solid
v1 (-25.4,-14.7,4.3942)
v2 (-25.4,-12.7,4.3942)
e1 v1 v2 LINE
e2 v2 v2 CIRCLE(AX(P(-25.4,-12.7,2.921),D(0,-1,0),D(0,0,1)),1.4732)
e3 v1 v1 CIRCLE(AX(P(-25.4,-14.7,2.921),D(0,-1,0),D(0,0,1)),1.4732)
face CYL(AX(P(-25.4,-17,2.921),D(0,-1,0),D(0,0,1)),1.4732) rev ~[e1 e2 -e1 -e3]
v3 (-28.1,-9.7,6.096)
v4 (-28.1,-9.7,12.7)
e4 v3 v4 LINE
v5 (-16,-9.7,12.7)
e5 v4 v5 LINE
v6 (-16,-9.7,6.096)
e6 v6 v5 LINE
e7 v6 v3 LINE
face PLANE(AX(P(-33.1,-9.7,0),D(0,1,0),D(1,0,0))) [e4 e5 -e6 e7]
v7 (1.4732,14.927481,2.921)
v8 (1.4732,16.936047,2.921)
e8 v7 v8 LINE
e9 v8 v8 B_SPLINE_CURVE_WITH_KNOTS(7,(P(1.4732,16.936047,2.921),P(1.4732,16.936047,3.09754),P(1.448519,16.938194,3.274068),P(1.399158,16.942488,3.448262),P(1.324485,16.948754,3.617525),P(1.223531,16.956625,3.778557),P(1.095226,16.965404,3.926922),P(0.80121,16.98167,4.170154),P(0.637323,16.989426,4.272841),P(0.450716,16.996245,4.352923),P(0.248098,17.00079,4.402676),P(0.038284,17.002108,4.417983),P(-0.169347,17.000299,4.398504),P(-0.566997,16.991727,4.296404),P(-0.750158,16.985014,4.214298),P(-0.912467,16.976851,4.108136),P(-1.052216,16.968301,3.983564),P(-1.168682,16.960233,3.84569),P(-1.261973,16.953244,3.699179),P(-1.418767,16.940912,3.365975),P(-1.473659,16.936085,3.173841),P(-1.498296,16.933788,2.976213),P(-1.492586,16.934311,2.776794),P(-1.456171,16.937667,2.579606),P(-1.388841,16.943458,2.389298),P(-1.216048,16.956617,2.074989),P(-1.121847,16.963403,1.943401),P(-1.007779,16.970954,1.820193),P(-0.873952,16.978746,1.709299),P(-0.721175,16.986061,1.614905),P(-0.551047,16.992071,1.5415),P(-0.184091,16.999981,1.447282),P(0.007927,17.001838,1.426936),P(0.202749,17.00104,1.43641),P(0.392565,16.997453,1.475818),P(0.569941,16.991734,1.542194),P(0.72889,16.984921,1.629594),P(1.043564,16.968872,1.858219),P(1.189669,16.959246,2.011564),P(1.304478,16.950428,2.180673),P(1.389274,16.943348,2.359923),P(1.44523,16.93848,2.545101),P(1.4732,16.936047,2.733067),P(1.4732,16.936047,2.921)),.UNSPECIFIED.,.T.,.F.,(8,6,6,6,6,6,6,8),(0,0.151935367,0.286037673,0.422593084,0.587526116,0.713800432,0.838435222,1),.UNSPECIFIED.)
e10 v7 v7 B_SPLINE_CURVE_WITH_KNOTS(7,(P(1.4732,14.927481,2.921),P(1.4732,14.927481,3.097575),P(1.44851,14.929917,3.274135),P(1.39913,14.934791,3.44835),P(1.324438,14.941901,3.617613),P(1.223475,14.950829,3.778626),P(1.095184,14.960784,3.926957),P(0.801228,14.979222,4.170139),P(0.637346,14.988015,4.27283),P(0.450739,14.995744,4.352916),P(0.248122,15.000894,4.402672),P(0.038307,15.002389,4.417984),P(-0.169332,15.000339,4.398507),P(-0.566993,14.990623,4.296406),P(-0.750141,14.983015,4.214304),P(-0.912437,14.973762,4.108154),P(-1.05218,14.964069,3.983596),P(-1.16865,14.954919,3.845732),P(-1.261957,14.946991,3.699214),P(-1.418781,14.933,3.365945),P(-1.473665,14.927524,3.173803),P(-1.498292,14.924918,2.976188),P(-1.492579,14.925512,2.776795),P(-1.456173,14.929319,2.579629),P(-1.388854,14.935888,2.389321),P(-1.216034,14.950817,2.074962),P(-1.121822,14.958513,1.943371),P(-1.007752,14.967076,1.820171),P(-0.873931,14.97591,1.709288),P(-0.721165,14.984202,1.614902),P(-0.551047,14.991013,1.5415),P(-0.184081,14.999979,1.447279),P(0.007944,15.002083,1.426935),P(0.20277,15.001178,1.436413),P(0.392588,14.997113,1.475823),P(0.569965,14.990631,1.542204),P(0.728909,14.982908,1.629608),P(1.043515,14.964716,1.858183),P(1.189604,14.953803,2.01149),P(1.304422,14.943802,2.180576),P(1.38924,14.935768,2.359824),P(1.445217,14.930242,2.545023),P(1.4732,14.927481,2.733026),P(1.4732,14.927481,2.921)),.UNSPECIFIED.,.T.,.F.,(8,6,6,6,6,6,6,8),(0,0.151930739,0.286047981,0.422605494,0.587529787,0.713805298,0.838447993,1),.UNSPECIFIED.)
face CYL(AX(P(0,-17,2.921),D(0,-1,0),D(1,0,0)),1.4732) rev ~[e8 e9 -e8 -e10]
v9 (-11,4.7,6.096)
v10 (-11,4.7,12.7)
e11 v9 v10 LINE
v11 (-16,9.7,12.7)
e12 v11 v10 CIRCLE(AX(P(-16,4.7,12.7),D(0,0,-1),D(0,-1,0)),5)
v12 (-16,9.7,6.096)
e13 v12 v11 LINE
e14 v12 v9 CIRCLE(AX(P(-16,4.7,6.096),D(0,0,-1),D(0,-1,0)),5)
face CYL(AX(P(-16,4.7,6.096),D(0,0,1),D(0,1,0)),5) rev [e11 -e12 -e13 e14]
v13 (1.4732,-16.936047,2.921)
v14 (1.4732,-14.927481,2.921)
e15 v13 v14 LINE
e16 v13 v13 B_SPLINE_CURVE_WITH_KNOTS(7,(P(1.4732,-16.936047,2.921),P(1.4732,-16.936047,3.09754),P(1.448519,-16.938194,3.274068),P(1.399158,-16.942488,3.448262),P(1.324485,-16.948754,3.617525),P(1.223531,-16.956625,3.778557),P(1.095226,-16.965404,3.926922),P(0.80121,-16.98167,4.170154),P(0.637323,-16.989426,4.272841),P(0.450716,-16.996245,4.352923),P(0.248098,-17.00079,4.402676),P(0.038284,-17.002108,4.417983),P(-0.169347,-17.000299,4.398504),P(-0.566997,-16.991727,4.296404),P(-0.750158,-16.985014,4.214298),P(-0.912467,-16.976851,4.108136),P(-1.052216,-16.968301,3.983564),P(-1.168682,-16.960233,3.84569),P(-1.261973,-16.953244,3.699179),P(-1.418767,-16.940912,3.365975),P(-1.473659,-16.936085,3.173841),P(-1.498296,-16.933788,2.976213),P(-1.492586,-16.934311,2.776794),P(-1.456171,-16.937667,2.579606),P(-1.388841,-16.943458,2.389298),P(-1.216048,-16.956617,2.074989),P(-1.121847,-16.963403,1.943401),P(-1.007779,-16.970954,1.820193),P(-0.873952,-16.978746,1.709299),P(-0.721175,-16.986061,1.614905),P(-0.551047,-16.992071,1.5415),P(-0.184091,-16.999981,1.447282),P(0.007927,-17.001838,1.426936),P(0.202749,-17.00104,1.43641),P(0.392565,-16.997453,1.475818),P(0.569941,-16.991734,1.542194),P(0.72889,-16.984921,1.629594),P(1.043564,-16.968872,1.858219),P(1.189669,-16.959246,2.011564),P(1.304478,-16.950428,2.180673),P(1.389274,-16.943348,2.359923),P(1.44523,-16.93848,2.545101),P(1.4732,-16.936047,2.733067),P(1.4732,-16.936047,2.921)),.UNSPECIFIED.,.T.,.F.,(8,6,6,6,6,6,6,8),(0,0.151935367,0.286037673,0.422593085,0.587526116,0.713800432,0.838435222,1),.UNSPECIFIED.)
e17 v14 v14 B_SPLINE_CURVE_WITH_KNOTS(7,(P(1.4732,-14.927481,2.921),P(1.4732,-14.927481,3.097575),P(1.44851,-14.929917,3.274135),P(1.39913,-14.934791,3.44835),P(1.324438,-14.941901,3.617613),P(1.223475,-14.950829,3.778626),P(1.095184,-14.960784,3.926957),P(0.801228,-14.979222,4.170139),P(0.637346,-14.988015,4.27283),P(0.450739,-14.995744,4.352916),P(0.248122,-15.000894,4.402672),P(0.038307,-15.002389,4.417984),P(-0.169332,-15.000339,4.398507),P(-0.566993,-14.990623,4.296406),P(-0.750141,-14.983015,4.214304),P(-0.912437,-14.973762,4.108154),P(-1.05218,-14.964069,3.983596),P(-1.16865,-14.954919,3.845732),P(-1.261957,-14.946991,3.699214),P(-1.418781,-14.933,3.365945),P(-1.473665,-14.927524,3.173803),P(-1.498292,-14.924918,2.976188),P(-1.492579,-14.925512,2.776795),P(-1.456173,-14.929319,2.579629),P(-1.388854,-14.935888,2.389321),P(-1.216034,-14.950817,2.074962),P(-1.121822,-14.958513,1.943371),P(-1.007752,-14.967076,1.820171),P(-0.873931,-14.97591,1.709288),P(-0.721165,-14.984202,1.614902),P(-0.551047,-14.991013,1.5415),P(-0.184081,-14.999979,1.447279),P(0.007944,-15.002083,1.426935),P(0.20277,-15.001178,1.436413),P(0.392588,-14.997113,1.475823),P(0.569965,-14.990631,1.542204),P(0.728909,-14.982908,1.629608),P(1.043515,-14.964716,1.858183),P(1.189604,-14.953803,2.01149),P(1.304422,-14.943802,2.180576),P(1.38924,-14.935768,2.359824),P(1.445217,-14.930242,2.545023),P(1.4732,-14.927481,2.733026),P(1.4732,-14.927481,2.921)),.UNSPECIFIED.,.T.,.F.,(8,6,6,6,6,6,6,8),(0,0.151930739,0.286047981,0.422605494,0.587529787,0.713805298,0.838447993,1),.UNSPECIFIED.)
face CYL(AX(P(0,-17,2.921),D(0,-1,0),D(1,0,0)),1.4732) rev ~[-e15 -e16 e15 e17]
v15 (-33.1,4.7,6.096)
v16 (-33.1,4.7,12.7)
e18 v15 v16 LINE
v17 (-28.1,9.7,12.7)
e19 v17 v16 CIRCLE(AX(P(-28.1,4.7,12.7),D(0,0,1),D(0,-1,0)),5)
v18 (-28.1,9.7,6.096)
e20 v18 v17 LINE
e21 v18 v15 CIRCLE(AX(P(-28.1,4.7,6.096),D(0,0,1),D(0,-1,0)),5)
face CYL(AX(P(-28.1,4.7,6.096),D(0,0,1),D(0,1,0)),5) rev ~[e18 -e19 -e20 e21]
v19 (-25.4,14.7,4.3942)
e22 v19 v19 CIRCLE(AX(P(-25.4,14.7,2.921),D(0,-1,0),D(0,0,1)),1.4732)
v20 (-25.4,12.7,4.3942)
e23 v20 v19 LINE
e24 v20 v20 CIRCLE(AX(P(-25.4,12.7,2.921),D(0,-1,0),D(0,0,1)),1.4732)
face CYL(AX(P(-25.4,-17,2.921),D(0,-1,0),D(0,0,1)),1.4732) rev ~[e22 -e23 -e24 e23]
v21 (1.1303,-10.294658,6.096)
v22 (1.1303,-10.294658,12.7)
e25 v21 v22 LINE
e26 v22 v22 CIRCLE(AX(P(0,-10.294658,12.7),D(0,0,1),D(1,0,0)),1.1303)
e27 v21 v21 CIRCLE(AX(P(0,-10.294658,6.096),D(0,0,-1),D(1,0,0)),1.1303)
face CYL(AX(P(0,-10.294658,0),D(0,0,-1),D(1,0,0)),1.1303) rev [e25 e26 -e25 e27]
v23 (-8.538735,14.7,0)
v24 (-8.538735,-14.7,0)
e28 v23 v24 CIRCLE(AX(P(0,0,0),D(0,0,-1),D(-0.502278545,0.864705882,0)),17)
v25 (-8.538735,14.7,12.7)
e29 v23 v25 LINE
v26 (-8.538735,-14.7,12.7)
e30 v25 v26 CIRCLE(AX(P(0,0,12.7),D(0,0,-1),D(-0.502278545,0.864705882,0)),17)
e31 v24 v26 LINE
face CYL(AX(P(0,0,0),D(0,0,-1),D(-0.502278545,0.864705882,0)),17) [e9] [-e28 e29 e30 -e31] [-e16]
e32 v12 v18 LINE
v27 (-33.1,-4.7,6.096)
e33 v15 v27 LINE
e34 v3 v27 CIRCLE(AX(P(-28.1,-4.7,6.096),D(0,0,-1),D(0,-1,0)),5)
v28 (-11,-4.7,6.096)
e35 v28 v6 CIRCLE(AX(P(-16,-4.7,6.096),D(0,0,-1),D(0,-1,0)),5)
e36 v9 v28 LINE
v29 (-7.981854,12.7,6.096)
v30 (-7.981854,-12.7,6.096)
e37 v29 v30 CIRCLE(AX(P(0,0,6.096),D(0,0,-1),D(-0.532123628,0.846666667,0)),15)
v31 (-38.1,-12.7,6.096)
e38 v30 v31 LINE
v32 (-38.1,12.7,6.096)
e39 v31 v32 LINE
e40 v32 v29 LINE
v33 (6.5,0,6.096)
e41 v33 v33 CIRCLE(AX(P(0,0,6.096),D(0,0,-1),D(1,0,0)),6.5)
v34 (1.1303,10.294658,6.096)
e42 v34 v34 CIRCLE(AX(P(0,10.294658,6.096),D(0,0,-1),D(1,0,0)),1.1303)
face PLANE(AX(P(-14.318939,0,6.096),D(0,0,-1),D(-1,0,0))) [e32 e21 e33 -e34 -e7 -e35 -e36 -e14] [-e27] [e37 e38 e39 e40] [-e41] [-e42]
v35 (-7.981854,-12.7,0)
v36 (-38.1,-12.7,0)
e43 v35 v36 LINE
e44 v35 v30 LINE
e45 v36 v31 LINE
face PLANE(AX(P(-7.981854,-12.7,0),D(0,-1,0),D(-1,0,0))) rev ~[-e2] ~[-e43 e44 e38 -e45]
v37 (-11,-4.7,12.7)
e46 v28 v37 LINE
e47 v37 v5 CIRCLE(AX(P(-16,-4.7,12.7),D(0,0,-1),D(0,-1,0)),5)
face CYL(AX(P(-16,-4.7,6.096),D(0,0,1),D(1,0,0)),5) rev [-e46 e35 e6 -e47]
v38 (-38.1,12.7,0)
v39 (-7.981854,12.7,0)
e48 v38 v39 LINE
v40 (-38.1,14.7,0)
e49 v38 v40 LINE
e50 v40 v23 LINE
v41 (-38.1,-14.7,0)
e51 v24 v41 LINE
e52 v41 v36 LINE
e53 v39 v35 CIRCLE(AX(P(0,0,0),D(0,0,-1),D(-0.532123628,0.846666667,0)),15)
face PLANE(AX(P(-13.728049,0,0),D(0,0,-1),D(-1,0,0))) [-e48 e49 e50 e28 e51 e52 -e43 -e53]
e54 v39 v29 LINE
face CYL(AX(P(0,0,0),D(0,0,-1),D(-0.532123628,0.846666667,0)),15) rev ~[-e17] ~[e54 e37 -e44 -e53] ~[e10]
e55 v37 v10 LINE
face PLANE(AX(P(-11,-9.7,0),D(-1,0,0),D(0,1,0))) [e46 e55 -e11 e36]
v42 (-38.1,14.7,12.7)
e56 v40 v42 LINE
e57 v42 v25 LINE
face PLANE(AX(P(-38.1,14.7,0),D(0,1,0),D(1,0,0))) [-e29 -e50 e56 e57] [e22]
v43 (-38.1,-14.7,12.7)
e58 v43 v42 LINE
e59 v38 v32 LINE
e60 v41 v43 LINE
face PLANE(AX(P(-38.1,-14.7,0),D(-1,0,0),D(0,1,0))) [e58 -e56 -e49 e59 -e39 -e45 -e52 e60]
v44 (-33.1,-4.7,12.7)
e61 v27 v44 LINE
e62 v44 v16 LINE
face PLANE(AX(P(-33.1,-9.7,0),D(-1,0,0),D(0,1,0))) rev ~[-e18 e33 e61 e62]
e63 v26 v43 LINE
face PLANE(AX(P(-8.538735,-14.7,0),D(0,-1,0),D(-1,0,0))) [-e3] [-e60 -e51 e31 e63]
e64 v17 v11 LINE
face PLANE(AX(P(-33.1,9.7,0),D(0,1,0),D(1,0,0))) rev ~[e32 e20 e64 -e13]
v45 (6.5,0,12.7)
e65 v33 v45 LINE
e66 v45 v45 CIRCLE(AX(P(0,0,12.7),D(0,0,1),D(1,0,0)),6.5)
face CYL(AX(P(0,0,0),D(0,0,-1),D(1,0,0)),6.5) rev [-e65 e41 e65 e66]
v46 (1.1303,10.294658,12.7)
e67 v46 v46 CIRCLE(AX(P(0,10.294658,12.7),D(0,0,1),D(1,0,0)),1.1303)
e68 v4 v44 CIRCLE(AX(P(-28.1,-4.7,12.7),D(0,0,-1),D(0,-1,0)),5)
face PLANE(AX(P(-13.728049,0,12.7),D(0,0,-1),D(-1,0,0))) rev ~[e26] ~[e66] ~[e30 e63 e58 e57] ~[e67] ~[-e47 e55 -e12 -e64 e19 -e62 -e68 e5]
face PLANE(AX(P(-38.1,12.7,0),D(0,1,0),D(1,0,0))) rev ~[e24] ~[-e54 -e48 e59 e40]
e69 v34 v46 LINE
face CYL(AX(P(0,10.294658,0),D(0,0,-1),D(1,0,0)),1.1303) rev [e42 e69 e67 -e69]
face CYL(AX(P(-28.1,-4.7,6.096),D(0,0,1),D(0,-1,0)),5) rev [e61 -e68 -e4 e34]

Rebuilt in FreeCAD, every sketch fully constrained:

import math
import FreeCAD as App
import Part
import Sketcher
from FreeCAD import Vector
Q = App.Units.Quantity


def edges_at(feature, points):
    """Names of the edges that pass closest to the given points."""
    edges = feature.Shape.Edges
    near = lambda p: min(range(len(edges)), key=lambda i: edges[i].distToShape(Part.Vertex(*p))[0])
    return sorted({f"Edge{near(p) + 1}" for p in points})

doc = App.newDocument("Part")
body = doc.addObject("PartDesign::Body", "Body")

sketch1 = doc.addObject("Sketcher::SketchObject", "Sketch")
body.addObject(sketch1)
sketch1.AttachmentSupport = (doc.XY_Plane, [""])
sketch1.MapMode = "FlatFace"
sketch1.addGeometry(Part.LineSegment(Vector(-38.1, 14.7, 0), Vector(-38.1, -14.7, 0)), False)
sketch1.addGeometry(Part.LineSegment(Vector(-38.1, -14.7, 0), Vector(-8.538735, -14.7, 0)), False)
sketch1.addGeometry(Part.ArcOfCircle(Part.Circle(Vector(0, 0, 0), Vector(0, 0, 1), 17), math.radians(-120.150862), math.radians(120.150862)), False)
sketch1.addGeometry(Part.LineSegment(Vector(-8.538735, 14.7, 0), Vector(-38.1, 14.7, 0)), False)
sketch1.addGeometry(Part.Circle(Vector(0, -10.294658, 0), Vector(0, 0, 1), 1.1303), False)
sketch1.addGeometry(Part.Circle(Vector(0, 0, 0), Vector(0, 0, 1), 6.5), False)
sketch1.addGeometry(Part.Circle(Vector(0, 10.294658, 0), Vector(0, 0, 1), 1.1303), False)
sketch1.addGeometry(Part.LineSegment(Vector(-33.1, -9.7, 0), Vector(-33.1, 9.7, 0)), False)
sketch1.addGeometry(Part.LineSegment(Vector(-33.1, 9.7, 0), Vector(-11, 9.7, 0)), False)
sketch1.addGeometry(Part.LineSegment(Vector(-11, 9.7, 0), Vector(-11, -9.7, 0)), False)
sketch1.addGeometry(Part.LineSegment(Vector(-11, -9.7, 0), Vector(-33.1, -9.7, 0)), False)
sketch1.addConstraint(Sketcher.Constraint("Coincident", 0, 2, 1, 1))
sketch1.addConstraint(Sketcher.Constraint("Coincident", 1, 2, 2, 1))
sketch1.addConstraint(Sketcher.Constraint("Coincident", 2, 2, 3, 1))
sketch1.addConstraint(Sketcher.Constraint("Coincident", 3, 2, 0, 1))
sketch1.addConstraint(Sketcher.Constraint("Coincident", 7, 2, 8, 1))
sketch1.addConstraint(Sketcher.Constraint("Coincident", 8, 2, 9, 1))
sketch1.addConstraint(Sketcher.Constraint("Coincident", 9, 2, 10, 1))
sketch1.addConstraint(Sketcher.Constraint("Coincident", 10, 2, 7, 1))
sketch1.addConstraint(Sketcher.Constraint("Vertical", 0))
sketch1.addConstraint(Sketcher.Constraint("Horizontal", 1))
sketch1.addConstraint(Sketcher.Constraint("Horizontal", 3))
sketch1.addConstraint(Sketcher.Constraint("Vertical", 7))
sketch1.addConstraint(Sketcher.Constraint("Horizontal", 8))
sketch1.addConstraint(Sketcher.Constraint("Vertical", 9))
sketch1.addConstraint(Sketcher.Constraint("Horizontal", 10))
sketch1.addConstraint(Sketcher.Constraint("Coincident", 2, 3, -1, 1))
sketch1.addConstraint(Sketcher.Constraint("Coincident", 5, 3, -1, 1))
sketch1.addConstraint(Sketcher.Constraint("Equal", 4, 6))
sketch1.addConstraint(Sketcher.Constraint("Symmetric", 4, 3, 6, 3, -1, 1))
sketch1.addConstraint(Sketcher.Constraint("PointOnObject", 4, 3, -2))
sketch1.addConstraint(Sketcher.Constraint("Vertical", 1, 2, 2, 2))
sketch1.addConstraint(Sketcher.Constraint("Diameter", 5, Q("13 mm")))
sketch1.addConstraint(Sketcher.Constraint("Radius", 2, Q("17 mm")))
sketch1.addConstraint(Sketcher.Constraint("DistanceX", 8, 1, 8, 2, Q("22.1 mm")))
sketch1.addConstraint(Sketcher.Constraint("DistanceY", 0, 2, 0, 1, Q("29.4 mm")))
sketch1.addConstraint(Sketcher.Constraint("DistanceY", 7, 1, 7, 2, Q("19.4 mm")))
sketch1.addConstraint(Sketcher.Constraint("DistanceX", 8, 2, -1, 1, Q("11 mm")))
sketch1.addConstraint(Sketcher.Constraint("DistanceX", 3, 2, 7, 2, Q("5 mm")))
sketch1.addConstraint(Sketcher.Constraint("DistanceY", 7, 2, 3, 2, Q("5 mm")))
sketch1.addConstraint(Sketcher.Constraint("Diameter", 4, Q("2.2606 mm")))
sketch1.addConstraint(Sketcher.Constraint("DistanceY", 4, 3, -1, 1, Q("10.294658 mm")))
pad1 = doc.addObject("PartDesign::Pad", "Pad")
body.addObject(pad1)
pad1.Profile = sketch1
pad1.Length = 12.7

sketch2 = doc.addObject("Sketcher::SketchObject", "Sketch001")
body.addObject(sketch2)
sketch2.AttachmentSupport = (doc.XY_Plane, [""])
sketch2.MapMode = "FlatFace"
sketch2.addGeometry(Part.LineSegment(Vector(-38.1, 12.7, 0), Vector(-38.1, -12.7, 0)), False)
sketch2.addGeometry(Part.LineSegment(Vector(-38.1, -12.7, 0), Vector(-7.981854, -12.7, 0)), False)
sketch2.addGeometry(Part.ArcOfCircle(Part.Circle(Vector(0, 0, 0), Vector(0, 0, 1), 15), math.radians(-122.149052), math.radians(122.149052)), False)
sketch2.addGeometry(Part.LineSegment(Vector(-7.981854, 12.7, 0), Vector(-38.1, 12.7, 0)), False)
sketch2.addConstraint(Sketcher.Constraint("Coincident", 0, 2, 1, 1))
sketch2.addConstraint(Sketcher.Constraint("Coincident", 1, 2, 2, 1))
sketch2.addConstraint(Sketcher.Constraint("Coincident", 2, 2, 3, 1))
sketch2.addConstraint(Sketcher.Constraint("Coincident", 3, 2, 0, 1))
sketch2.addConstraint(Sketcher.Constraint("Vertical", 0))
sketch2.addConstraint(Sketcher.Constraint("Horizontal", 1))
sketch2.addConstraint(Sketcher.Constraint("Horizontal", 3))
sketch2.addConstraint(Sketcher.Constraint("Coincident", 2, 3, -1, 1))
sketch2.addConstraint(Sketcher.Constraint("Vertical", 1, 2, 2, 2))
sketch2.addConstraint(Sketcher.Constraint("Radius", 2, Q("15 mm")))
sketch2.addConstraint(Sketcher.Constraint("DistanceY", 0, 2, 0, 1, Q("25.4 mm")))
sketch2.addConstraint(Sketcher.Constraint("DistanceX", 0, 2, -1, 1, Q("38.1 mm")))
pocket1 = doc.addObject("PartDesign::Pocket", "Pocket")
body.addObject(pocket1)
pocket1.Profile = sketch2
pocket1.Length = 6.096
pocket1.Reversed = True
doc.recompute()

fillet = doc.addObject("PartDesign::Fillet", "Fillet")
body.addObject(fillet)
fillet.Base = (pocket1, edges_at(pocket1, [
    (-33.1, 9.7, 9.398),
    (-33.1, -9.7, 9.398),
    (-11, -9.7, 9.398),
    (-11, 9.7, 9.398),
]))
fillet.Radius = 5

sketch3 = doc.addObject("Sketcher::SketchObject", "Sketch002")
body.addObject(sketch3)
sketch3.AttachmentSupport = (doc.XZ_Plane, [""])
sketch3.MapMode = "FlatFace"
sketch3.AttachmentOffset = App.Placement(Vector(0, 0, 17), App.Rotation())
sketch3.addGeometry(Part.Circle(Vector(0, 2.921, 0), Vector(0, 0, 1), 1.4732), False)
sketch3.addGeometry(Part.Circle(Vector(-25.4, 2.921, 0), Vector(0, 0, 1), 1.4732), False)
sketch3.addConstraint(Sketcher.Constraint("Equal", 0, 1))
sketch3.addConstraint(Sketcher.Constraint("PointOnObject", 0, 3, -2))
sketch3.addConstraint(Sketcher.Constraint("Horizontal", 0, 3, 1, 3))
sketch3.addConstraint(Sketcher.Constraint("Diameter", 0, Q("2.9464 mm")))
sketch3.addConstraint(Sketcher.Constraint("DistanceX", 1, 3, -1, 1, Q("25.4 mm")))
sketch3.addConstraint(Sketcher.Constraint("DistanceY", -1, 1, 0, 3, Q("2.921 mm")))
pocket2 = doc.addObject("PartDesign::Pocket", "Pocket001")
body.addObject(pocket2)
pocket2.Profile = sketch3
pocket2.Type = "ThroughAll"

doc.recompute()
